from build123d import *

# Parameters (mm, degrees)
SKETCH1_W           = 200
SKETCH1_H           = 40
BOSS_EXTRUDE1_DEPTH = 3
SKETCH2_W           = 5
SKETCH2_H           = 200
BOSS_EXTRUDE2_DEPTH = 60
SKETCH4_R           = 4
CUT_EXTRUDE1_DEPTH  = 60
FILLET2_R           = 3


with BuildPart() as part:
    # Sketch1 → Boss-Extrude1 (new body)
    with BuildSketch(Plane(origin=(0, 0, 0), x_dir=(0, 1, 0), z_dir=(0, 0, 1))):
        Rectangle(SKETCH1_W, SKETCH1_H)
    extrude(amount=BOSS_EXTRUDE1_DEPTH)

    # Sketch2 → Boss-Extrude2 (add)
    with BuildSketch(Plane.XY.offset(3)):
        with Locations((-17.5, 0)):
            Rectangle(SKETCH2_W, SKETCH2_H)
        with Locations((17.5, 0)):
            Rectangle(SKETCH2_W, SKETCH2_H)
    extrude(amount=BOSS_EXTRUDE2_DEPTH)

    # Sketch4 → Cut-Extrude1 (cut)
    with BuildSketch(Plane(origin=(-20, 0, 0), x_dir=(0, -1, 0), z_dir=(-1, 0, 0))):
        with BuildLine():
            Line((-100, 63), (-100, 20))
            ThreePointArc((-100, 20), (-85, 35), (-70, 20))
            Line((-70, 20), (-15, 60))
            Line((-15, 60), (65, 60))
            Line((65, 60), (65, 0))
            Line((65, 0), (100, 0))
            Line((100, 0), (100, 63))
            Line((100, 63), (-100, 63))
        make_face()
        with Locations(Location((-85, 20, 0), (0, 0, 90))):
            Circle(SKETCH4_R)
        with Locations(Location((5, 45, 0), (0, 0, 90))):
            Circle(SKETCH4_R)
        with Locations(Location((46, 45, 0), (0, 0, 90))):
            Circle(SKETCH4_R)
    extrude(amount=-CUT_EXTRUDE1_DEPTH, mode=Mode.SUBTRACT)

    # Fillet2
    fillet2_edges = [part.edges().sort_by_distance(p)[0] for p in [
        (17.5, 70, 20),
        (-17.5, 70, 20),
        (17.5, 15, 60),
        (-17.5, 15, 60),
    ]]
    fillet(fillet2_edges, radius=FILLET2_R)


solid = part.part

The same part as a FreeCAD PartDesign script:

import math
import FreeCAD as App
import Part
import Sketcher


def edges_at(feature, points):
    """Names of the edges that pass closest to the given points."""
    edges = feature.Shape.Edges
    near = lambda p: min(range(len(edges)), key=lambda i: edges[i].distToShape(Part.Vertex(*p))[0])
    return sorted({f"Edge{near(p) + 1}" for p in points})


def add_polygon(sketch, points):
    """Adds a closed chain of lines whose ends are joined by coincident constraints."""
    first, n = sketch.GeometryCount, len(points)
    for a, b in zip(points, points[1:] + points[:1]):
        sketch.addGeometry(Part.LineSegment(App.Vector(*a, 0), App.Vector(*b, 0)), False)
    for i in range(n):
        sketch.addConstraint(Sketcher.Constraint("Coincident", first + i, 2, first + (i + 1) % n, 1))

doc = App.newDocument("Part")
params = doc.addObject("Spreadsheet::Sheet", "Params")
for row, (alias, value) in enumerate([
    ("sketch1_width", "40 mm"),
    ("sketch1_height", "200 mm"),
    ("pad1_length", "3 mm"),
    ("sketch2_width", "5 mm"),
    ("sketch2_height", "200 mm"),
    ("pad2_length", "60 mm"),
    ("sketch3_diameter", "8 mm"),
    ("sketch3_radius", "15 mm"),
    ("sketch3_width", "80 mm"),
    ("sketch3_width2", "35 mm"),
    ("sketch3_width3", "200 mm"),
    ("pocket1_length", "60 mm"),
    ("fillet_radius", "3 mm"),
], start=1):
    params.set(f"A{row}", alias)
    params.set(f"B{row}", "=" + value)
    params.setAlias(f"B{row}", alias)

body = doc.addObject("PartDesign::Body", "Body")

# Sketch on XY plane
sketch1 = body.newObject("Sketcher::SketchObject", "Sketch")
sketch1.AttachmentSupport = (doc.getObject("XY_Plane"), [""])
sketch1.MapMode = "FlatFace"
add_polygon(sketch1, [(-20, -100), (20, -100), (20, 100), (-20, 100)])  # lines 0-3
sketch1.addConstraint(Sketcher.Constraint("Horizontal", 0))
sketch1.addConstraint(Sketcher.Constraint("Vertical", 1))
sketch1.addConstraint(Sketcher.Constraint("Horizontal", 2))
sketch1.addConstraint(Sketcher.Constraint("Vertical", 3))
sketch1.addConstraint(Sketcher.Constraint("Symmetric", 0, 2, 2, 2, -1, 1))
sketch1.addConstraint(Sketcher.Constraint("DistanceX", 0, 1, 0, 2, 40.0))
sketch1.addConstraint(Sketcher.Constraint("DistanceY", 1, 1, 1, 2, 200.0))
sketch1.setExpression("Constraints[9]", "Params.sketch1_width")
sketch1.setExpression("Constraints[10]", "Params.sketch1_height")
pad1 = body.newObject("PartDesign::Pad", "Pad")
pad1.Profile = sketch1
pad1.setExpression("Length", "Params.pad1_length")

# Sketch on XY plane
sketch2 = body.newObject("Sketcher::SketchObject", "Sketch001")
sketch2.AttachmentSupport = (doc.getObject("XY_Plane"), [""])
sketch2.MapMode = "FlatFace"
sketch2.AttachmentOffset = App.Placement(App.Vector(0, 0, 3), App.Rotation())
add_polygon(sketch2, [(-20, 100), (-20, -100), (-15, -100), (-15, 100)])  # lines 0-3
add_polygon(sketch2, [(15, 100), (15, -100), (20, -100), (20, 100)])  # lines 4-7
sketch2.addConstraint(Sketcher.Constraint("Vertical", 0))
sketch2.addConstraint(Sketcher.Constraint("Horizontal", 1))
sketch2.addConstraint(Sketcher.Constraint("Vertical", 2))
sketch2.addConstraint(Sketcher.Constraint("Horizontal", 3))
sketch2.addConstraint(Sketcher.Constraint("Vertical", 4))
sketch2.addConstraint(Sketcher.Constraint("Horizontal", 5))
sketch2.addConstraint(Sketcher.Constraint("Vertical", 6))
sketch2.addConstraint(Sketcher.Constraint("Horizontal", 7))
sketch2.addConstraint(Sketcher.Constraint("Symmetric", 2, 2, 4, 2, -1, 1))
sketch2.addConstraint(Sketcher.Constraint("Symmetric", 0, 2, 6, 2, -1, 1))
sketch2.addConstraint(Sketcher.Constraint("Horizontal", 1, 2, 4, 2))
sketch2.addConstraint(Sketcher.Constraint("DistanceX", 1, 1, 1, 2, 5.0))
sketch2.addConstraint(Sketcher.Constraint("DistanceY", 0, 2, 0, 1, 200.0))
sketch2.addConstraint(Sketcher.Constraint("DistanceX", 0, 2, -1, 1, 20.0))
sketch2.setExpression("Constraints[19]", "Params.sketch2_width")
sketch2.setExpression("Constraints[20]", "Params.sketch2_height")
pad2 = body.newObject("PartDesign::Pad", "Pad001")
pad2.Profile = sketch2
pad2.setExpression("Length", "Params.pad2_length")

# Sketch on YZ plane
sketch3 = body.newObject("Sketcher::SketchObject", "Sketch002")
sketch3.AttachmentSupport = (doc.getObject("YZ_Plane"), [""])
sketch3.MapMode = "FlatFace"
sketch3.AttachmentOffset = App.Placement(App.Vector(0, 0, -20), App.Rotation())
sketch3.addGeometry(Part.LineSegment(App.Vector(100, 63, 0), App.Vector(100, 20, 0)), False)
sketch3.addGeometry(Part.ArcOfCircle(Part.Circle(App.Vector(85, 20, 0), App.Vector(0, 0, 1), 15), math.radians(0), math.radians(180)), False)
sketch3.addGeometry(Part.LineSegment(App.Vector(70, 20, 0), App.Vector(15, 60, 0)), False)
sketch3.addGeometry(Part.LineSegment(App.Vector(15, 60, 0), App.Vector(-65, 60, 0)), False)
sketch3.addGeometry(Part.LineSegment(App.Vector(-65, 60, 0), App.Vector(-65, 0, 0)), False)
sketch3.addGeometry(Part.LineSegment(App.Vector(-65, 0, 0), App.Vector(-100, 0, 0)), False)
sketch3.addGeometry(Part.LineSegment(App.Vector(-100, 0, 0), App.Vector(-100, 63, 0)), False)
sketch3.addGeometry(Part.LineSegment(App.Vector(-100, 63, 0), App.Vector(100, 63, 0)), False)
sketch3.addGeometry(Part.Circle(App.Vector(85, 20, 0), App.Vector(0, 0, 1), 4), False)
sketch3.addGeometry(Part.Circle(App.Vector(-5, 45, 0), App.Vector(0, 0, 1), 4), False)
sketch3.addGeometry(Part.Circle(App.Vector(-46, 45, 0), App.Vector(0, 0, 1), 4), False)
sketch3.addConstraint(Sketcher.Constraint("Tangent", 0, 2, 1, 1))
sketch3.addConstraint(Sketcher.Constraint("Coincident", 1, 2, 2, 1))
sketch3.addConstraint(Sketcher.Constraint("Coincident", 2, 2, 3, 1))
sketch3.addConstraint(Sketcher.Constraint("Coincident", 3, 2, 4, 1))
sketch3.addConstraint(Sketcher.Constraint("Coincident", 4, 2, 5, 1))
sketch3.addConstraint(Sketcher.Constraint("Coincident", 5, 2, 6, 1))
sketch3.addConstraint(Sketcher.Constraint("Coincident", 6, 2, 7, 1))
sketch3.addConstraint(Sketcher.Constraint("Coincident", 7, 2, 0, 1))
sketch3.addConstraint(Sketcher.Constraint("Vertical", 0))
sketch3.addConstraint(Sketcher.Constraint("Horizontal", 3))
sketch3.addConstraint(Sketcher.Constraint("Vertical", 4))
sketch3.addConstraint(Sketcher.Constraint("Horizontal", 5))
sketch3.addConstraint(Sketcher.Constraint("Vertical", 6))
sketch3.addConstraint(Sketcher.Constraint("Horizontal", 7))
sketch3.addConstraint(Sketcher.Constraint("Coincident", 8, 3, 1, 3))
sketch3.addConstraint(Sketcher.Constraint("Equal", 8, 9))
sketch3.addConstraint(Sketcher.Constraint("Equal", 9, 10))
sketch3.addConstraint(Sketcher.Constraint("PointOnObject", 4, 2, -1))
sketch3.addConstraint(Sketcher.Constraint("Horizontal", 9, 3, 10, 3))
sketch3.addConstraint(Sketcher.Constraint("Horizontal", 0, 2, 1, 2))
sketch3.addConstraint(Sketcher.Constraint("Diameter", 8, 8.0))
sketch3.addConstraint(Sketcher.Constraint("Radius", 1, 15.0))
sketch3.addConstraint(Sketcher.Constraint("DistanceX", 3, 2, 3, 1, 80.0))
sketch3.addConstraint(Sketcher.Constraint("DistanceX", 5, 2, 5, 1, 35.0))
sketch3.addConstraint(Sketcher.Constraint("DistanceX", 7, 1, 7, 2, 200.0))
sketch3.addConstraint(Sketcher.Constraint("DistanceY", 0, 2, 0, 1, 43.0))
sketch3.addConstraint(Sketcher.Constraint("DistanceY", 4, 2, 4, 1, 60.0))
sketch3.addConstraint(Sketcher.Constraint("DistanceY", 6, 1, 6, 2, 63.0))
sketch3.addConstraint(Sketcher.Constraint("DistanceX", -1, 1, 1, 3, 85.0))
sketch3.addConstraint(Sketcher.Constraint("DistanceX", 9, 3, -1, 1, 5.0))
sketch3.addConstraint(Sketcher.Constraint("DistanceY", -1, 1, 9, 3, 45.0))
sketch3.addConstraint(Sketcher.Constraint("DistanceX", 10, 3, -1, 1, 46.0))
sketch3.setExpression("Constraints[20]", "Params.sketch3_diameter")
sketch3.setExpression("Constraints[21]", "Params.sketch3_radius")
sketch3.setExpression("Constraints[22]", "Params.sketch3_width")
sketch3.setExpression("Constraints[23]", "Params.sketch3_width2")
sketch3.setExpression("Constraints[24]", "Params.sketch3_width3")
pocket1 = body.newObject("PartDesign::Pocket", "Pocket")
pocket1.Profile = sketch3
pocket1.setExpression("Length", "Params.pocket1_length")
pocket1.Reversed = True
doc.recompute()

fillet = body.newObject("PartDesign::Fillet", "Fillet")
fillet.Base = (pocket1, edges_at(pocket1, [
    (17.5, 70, 20),
    (-17.5, 70, 20),
    (17.5, 15, 60),
    (-17.5, 15, 60),
]))
fillet.setExpression("Radius", "Params.fillet_radius")

doc.recompute()
